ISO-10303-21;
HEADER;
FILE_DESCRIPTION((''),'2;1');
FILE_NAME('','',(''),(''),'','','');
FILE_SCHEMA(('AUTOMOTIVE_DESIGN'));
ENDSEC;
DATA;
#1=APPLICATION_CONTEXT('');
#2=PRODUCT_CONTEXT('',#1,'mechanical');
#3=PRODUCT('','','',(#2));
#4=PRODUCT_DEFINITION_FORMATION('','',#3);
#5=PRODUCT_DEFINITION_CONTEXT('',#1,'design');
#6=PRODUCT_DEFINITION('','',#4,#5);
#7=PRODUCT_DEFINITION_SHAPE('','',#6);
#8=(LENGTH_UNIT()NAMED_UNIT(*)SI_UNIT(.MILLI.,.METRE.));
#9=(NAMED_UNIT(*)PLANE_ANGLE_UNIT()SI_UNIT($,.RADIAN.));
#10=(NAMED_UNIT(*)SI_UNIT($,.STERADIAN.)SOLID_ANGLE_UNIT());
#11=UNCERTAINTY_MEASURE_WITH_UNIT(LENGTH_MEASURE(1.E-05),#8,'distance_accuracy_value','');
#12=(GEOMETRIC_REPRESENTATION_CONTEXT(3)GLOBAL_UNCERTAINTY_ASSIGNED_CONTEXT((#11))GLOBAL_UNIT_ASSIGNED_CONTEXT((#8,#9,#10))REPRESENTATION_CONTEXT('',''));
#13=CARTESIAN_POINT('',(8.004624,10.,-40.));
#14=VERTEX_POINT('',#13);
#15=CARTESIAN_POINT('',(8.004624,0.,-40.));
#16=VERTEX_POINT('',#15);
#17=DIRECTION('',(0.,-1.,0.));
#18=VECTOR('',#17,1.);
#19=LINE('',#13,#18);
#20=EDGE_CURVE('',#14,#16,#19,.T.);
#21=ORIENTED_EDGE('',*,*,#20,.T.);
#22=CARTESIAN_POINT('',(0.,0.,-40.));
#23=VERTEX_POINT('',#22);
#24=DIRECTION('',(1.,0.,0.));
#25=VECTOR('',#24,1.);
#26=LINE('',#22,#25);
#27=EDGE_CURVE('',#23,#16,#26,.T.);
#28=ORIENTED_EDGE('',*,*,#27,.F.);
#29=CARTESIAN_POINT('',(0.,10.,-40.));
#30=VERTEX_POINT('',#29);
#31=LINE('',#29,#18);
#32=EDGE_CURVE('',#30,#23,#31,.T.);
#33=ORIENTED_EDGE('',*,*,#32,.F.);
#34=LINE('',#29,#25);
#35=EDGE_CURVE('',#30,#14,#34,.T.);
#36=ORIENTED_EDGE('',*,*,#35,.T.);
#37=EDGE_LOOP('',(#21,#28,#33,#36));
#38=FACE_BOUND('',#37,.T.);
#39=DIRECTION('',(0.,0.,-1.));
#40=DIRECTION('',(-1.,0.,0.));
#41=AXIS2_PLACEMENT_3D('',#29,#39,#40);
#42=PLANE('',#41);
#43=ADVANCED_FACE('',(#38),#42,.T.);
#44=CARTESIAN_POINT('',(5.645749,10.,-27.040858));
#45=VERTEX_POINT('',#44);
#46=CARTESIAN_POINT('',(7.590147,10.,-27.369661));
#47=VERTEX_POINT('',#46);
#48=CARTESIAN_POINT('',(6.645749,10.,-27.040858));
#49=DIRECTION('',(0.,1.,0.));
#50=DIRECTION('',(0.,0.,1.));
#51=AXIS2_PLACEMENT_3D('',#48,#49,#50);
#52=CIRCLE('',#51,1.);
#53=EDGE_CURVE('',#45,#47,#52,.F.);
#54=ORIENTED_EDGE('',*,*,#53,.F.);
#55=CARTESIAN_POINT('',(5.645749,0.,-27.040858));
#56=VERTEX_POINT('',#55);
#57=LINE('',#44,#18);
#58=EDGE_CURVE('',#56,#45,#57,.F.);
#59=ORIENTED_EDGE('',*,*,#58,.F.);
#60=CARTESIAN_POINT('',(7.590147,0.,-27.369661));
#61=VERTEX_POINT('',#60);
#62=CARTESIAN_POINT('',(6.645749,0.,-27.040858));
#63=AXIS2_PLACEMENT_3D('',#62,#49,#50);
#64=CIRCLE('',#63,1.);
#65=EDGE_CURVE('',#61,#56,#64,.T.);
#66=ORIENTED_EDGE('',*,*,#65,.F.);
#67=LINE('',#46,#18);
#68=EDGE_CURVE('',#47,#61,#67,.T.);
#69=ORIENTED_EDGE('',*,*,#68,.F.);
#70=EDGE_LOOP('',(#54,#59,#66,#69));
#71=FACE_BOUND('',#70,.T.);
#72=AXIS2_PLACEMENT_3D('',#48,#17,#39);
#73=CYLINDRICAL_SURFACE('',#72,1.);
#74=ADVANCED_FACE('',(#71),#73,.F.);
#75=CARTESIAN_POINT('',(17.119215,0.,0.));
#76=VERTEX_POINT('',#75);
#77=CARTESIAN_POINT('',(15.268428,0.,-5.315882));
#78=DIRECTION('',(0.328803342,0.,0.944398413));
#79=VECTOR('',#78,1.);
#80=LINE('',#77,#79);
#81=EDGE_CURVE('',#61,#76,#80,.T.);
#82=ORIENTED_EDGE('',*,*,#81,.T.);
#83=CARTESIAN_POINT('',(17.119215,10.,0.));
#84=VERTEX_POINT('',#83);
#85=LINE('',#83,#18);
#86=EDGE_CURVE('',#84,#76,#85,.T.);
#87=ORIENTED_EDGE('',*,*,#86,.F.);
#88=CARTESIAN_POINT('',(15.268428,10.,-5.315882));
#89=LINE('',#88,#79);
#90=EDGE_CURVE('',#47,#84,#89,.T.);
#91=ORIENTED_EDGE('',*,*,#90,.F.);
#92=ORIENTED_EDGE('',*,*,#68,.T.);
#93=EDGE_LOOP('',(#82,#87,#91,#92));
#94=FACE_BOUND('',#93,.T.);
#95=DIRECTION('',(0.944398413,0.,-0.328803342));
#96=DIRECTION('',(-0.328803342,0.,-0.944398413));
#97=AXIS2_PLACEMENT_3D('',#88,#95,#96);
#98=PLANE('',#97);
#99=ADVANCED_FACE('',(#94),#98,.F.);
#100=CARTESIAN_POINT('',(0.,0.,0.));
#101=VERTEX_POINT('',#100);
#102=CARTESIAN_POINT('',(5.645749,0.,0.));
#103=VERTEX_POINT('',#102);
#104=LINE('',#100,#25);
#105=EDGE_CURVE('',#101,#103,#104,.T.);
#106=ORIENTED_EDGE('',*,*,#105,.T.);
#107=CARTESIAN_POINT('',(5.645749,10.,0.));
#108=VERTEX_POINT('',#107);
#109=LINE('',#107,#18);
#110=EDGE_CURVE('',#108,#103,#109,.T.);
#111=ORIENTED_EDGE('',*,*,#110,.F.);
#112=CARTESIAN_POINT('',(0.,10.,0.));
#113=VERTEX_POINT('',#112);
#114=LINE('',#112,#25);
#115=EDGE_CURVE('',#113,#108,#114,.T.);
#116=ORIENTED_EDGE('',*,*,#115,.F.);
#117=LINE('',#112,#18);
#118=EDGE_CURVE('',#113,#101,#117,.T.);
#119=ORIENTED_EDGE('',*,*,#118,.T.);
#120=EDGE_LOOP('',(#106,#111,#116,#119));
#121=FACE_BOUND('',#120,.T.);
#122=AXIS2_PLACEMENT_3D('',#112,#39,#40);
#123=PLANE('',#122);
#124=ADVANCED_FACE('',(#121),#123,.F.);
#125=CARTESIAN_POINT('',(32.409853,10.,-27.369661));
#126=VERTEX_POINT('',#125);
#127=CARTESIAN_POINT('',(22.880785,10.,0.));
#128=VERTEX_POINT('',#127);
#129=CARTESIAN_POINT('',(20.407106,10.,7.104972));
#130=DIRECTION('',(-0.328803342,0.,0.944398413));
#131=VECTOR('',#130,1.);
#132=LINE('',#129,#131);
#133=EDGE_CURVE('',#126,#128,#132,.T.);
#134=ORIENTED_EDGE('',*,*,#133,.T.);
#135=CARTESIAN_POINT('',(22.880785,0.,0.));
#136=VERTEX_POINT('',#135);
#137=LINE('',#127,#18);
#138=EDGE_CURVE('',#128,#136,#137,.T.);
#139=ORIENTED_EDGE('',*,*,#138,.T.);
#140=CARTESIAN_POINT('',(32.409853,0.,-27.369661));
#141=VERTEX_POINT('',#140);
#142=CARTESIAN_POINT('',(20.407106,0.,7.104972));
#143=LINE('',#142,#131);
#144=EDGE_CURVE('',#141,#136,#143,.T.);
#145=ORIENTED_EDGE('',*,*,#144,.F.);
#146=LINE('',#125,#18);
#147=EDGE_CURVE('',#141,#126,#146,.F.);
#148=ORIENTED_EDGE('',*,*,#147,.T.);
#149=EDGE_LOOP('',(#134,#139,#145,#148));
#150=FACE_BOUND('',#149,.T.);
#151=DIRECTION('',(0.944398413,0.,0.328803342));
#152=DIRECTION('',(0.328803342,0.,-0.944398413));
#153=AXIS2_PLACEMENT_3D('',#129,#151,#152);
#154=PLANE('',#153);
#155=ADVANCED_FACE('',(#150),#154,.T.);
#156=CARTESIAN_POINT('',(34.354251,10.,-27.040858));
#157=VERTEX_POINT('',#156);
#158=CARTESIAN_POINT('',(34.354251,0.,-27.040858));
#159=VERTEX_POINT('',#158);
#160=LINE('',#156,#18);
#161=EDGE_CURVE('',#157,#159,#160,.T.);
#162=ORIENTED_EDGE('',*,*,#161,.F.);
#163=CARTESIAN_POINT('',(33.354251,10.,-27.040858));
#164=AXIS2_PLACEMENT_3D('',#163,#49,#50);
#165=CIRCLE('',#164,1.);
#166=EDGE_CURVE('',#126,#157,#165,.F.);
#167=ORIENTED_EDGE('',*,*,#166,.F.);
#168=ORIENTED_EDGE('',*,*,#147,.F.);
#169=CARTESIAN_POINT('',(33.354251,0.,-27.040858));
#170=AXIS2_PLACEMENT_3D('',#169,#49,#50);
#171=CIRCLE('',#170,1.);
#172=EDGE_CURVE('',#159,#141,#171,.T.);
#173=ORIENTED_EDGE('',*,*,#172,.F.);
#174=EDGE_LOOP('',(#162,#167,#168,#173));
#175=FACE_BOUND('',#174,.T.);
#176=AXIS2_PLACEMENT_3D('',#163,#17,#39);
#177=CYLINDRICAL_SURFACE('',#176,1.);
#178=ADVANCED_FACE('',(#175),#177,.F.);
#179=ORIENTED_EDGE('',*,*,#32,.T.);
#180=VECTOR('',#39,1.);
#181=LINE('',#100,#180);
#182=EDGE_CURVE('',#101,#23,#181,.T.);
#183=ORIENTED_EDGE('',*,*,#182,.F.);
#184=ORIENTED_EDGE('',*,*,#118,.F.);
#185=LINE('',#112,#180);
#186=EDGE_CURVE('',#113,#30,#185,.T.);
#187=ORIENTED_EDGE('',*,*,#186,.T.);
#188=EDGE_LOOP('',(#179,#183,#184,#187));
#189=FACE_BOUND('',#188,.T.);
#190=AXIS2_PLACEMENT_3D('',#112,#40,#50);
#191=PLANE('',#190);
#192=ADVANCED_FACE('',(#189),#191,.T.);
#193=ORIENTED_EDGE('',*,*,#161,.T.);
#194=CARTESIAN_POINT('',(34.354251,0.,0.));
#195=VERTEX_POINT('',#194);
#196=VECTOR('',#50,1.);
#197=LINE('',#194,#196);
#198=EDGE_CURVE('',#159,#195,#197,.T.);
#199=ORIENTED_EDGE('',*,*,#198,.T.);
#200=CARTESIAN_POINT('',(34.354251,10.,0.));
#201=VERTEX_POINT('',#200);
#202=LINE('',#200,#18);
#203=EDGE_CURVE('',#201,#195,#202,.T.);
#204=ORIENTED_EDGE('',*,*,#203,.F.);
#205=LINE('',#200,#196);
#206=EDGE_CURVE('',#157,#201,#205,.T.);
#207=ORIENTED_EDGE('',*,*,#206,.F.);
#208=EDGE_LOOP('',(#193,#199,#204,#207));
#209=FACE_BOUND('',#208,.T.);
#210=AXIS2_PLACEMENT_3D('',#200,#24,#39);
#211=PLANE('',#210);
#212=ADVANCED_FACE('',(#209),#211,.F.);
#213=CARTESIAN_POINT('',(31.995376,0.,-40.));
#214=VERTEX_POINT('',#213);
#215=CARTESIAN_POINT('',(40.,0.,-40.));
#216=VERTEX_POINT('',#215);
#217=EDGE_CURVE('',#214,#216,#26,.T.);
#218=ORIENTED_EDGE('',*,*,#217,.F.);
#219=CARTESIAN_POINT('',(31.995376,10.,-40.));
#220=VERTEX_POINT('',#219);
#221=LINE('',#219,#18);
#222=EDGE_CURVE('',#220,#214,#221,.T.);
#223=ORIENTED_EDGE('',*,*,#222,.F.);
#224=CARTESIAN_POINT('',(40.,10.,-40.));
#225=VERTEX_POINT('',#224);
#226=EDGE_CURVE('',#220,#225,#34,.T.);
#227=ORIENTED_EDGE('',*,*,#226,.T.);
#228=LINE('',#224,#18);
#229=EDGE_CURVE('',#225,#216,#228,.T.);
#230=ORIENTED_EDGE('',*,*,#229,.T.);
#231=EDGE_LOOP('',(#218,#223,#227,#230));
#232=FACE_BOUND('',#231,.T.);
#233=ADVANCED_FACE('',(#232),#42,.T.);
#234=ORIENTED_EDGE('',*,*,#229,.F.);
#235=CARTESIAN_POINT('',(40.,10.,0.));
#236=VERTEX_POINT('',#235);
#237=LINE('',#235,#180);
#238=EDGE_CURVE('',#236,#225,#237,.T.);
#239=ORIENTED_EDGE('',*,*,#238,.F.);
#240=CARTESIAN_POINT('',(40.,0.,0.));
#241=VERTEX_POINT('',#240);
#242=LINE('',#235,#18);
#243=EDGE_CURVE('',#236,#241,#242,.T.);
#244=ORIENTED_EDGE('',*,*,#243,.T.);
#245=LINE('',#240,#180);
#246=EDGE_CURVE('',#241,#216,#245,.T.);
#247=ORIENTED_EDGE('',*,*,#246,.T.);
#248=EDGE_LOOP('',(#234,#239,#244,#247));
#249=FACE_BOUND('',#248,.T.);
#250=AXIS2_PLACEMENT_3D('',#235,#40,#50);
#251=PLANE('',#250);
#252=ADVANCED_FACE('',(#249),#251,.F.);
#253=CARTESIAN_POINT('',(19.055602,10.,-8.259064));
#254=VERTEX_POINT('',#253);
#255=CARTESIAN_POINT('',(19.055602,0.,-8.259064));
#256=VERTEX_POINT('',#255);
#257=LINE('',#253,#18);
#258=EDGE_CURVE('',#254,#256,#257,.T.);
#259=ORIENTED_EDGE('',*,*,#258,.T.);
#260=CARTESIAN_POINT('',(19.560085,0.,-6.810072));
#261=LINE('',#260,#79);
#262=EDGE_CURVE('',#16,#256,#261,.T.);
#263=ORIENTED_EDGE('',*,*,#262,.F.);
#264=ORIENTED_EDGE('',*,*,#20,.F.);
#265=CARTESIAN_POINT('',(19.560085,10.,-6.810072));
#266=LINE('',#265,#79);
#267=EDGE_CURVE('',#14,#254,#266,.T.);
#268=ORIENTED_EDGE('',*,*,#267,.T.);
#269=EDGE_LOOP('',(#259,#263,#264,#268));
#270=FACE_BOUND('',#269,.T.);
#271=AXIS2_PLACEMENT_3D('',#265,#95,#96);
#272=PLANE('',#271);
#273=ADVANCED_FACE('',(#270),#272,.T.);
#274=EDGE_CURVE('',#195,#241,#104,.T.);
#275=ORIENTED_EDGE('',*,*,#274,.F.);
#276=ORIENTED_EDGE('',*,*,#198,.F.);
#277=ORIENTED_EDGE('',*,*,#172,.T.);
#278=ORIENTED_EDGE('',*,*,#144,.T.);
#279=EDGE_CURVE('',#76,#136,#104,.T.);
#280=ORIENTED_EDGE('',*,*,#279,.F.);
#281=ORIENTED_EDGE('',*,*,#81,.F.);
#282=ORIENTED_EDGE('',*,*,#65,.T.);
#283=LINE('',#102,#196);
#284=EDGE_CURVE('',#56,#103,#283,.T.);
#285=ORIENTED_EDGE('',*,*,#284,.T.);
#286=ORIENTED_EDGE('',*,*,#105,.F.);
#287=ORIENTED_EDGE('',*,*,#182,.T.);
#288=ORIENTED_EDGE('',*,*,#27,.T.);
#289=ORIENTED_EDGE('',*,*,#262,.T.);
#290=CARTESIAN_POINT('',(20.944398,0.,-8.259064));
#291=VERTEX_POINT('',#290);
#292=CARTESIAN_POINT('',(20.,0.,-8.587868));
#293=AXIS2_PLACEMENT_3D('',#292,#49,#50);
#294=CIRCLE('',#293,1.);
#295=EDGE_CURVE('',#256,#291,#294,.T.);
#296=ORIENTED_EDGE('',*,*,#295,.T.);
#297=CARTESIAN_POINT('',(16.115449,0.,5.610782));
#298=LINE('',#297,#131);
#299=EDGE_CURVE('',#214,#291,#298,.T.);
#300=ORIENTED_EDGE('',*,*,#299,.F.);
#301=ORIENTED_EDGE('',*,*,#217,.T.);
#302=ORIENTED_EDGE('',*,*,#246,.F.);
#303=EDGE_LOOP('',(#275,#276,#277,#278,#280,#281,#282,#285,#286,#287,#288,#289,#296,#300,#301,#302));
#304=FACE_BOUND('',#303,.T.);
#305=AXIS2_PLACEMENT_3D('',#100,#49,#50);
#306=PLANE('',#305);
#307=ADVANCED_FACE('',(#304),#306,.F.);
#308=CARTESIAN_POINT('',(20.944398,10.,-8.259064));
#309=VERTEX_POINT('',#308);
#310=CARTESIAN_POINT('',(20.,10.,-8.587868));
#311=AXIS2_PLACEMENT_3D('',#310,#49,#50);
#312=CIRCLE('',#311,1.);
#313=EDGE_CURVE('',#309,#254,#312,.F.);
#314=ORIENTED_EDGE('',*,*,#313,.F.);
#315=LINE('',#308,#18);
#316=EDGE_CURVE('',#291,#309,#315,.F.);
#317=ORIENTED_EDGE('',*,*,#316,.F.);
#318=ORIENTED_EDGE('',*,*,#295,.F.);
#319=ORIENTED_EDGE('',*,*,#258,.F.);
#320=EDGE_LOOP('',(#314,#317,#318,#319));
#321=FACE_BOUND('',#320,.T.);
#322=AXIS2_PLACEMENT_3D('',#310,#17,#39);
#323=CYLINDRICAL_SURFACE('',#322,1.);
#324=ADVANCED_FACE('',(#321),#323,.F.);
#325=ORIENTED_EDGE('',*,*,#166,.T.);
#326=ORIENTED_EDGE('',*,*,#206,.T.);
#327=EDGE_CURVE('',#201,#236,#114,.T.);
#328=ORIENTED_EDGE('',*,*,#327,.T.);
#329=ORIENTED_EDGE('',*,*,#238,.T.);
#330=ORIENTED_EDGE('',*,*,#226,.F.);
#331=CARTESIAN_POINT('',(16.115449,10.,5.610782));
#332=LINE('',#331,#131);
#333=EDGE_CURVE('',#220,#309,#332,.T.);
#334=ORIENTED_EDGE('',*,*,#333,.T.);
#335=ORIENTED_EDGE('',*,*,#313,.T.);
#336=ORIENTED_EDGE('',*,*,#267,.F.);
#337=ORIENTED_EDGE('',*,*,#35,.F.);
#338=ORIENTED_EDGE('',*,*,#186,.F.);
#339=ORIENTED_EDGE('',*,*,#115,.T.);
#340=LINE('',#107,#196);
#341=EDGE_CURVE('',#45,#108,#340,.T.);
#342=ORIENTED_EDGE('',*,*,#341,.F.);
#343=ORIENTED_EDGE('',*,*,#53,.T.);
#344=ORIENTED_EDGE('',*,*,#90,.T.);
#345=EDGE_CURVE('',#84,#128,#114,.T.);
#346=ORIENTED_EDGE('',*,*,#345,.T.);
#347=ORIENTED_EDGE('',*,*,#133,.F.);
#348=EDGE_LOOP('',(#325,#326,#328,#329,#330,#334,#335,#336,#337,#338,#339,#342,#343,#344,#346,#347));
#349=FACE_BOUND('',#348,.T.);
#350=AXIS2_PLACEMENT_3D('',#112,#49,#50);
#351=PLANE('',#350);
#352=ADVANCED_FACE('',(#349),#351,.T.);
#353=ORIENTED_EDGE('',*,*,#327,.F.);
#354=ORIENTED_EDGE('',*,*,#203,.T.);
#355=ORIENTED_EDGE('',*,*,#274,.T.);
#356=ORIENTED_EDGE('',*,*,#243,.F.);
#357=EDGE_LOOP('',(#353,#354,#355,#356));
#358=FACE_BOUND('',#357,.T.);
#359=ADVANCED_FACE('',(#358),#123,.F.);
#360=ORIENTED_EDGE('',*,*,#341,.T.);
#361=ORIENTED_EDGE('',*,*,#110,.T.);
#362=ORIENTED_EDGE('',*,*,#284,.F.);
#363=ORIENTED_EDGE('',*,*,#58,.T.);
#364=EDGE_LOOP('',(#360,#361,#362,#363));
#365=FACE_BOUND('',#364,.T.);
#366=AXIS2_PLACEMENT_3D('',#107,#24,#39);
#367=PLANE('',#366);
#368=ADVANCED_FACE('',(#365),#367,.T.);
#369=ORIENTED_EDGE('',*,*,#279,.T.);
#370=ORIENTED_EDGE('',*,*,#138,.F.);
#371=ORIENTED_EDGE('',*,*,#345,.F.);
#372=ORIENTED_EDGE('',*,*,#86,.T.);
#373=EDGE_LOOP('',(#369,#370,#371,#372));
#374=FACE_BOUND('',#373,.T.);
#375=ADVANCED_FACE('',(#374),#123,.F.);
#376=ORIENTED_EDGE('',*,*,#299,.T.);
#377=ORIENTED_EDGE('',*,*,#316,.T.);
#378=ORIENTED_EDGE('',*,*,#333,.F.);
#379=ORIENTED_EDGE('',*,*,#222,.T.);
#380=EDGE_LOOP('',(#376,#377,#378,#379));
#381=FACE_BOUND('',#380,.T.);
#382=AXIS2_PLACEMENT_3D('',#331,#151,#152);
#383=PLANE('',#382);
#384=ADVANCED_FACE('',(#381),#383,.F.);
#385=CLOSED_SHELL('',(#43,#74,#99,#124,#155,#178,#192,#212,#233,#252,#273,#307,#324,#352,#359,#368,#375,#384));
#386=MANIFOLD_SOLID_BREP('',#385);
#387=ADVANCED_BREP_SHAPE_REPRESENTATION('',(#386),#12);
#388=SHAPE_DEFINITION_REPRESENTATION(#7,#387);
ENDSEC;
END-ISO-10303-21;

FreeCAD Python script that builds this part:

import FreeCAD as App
import Part
import Sketcher
Q = App.Units.Quantity


def edges_at(feature, points):
    """Names of the edges that pass closest to the given points."""
    edges = feature.Shape.Edges
    near = lambda p: min(range(len(edges)), key=lambda i: edges[i].distToShape(Part.Vertex(*p))[0])
    return sorted({f"Edge{near(p) + 1}" for p in points})


def add_polygon(sketch, points):
    """Adds a closed chain of lines whose ends are joined by coincident constraints."""
    first, n = sketch.GeometryCount, len(points)
    for a, b in zip(points, points[1:] + points[:1]):
        sketch.addGeometry(Part.LineSegment(App.Vector(*a, 0), App.Vector(*b, 0)), False)
    for i in range(n):
        sketch.addConstraint(Sketcher.Constraint("Coincident", first + i, 2, first + (i + 1) % n, 1))

doc = App.newDocument("Part")
body = doc.addObject("PartDesign::Body", "Body")

# Sketch on XZ plane
sketch1 = body.newObject("Sketcher::SketchObject", "Sketch")
sketch1.AttachmentSupport = (doc.getObject("XZ_Plane"), [""])
sketch1.MapMode = "FlatFace"
add_polygon(sketch1, [(34.354251, -32.954418), (34.354251, 0), (40, 0), (40, -40), (31.995376, -40), (20, -5.546536), (8.004624, -40), (0, -40), (0, 0), (5.645749, 0), (5.645749, -32.954418), (17.119215, 0), (22.880785, 0)])  # lines 0-12
sketch1.addConstraint([
    Sketcher.Constraint("Vertical", 0),
    Sketcher.Constraint("Horizontal", 1),
    Sketcher.Constraint("Vertical", 2),
    Sketcher.Constraint("Horizontal", 3),
    Sketcher.Constraint("Horizontal", 6),
    Sketcher.Constraint("Vertical", 7),
    Sketcher.Constraint("Horizontal", 8),
    Sketcher.Constraint("Vertical", 9),
    Sketcher.Constraint("Horizontal", 11),
    Sketcher.Constraint("Coincident", 7, 2, -1, 1),
    Sketcher.Constraint("PointOnObject", 0, 2, -1),
    Sketcher.Constraint("PointOnObject", 10, 2, -1),
    Sketcher.Constraint("Parallel", 5, 10),
    Sketcher.Constraint("Parallel", 4, 12),
    Sketcher.Constraint("Horizontal", 3, 2, 5, 2),
    Sketcher.Constraint("Horizontal", 9, 2, 12, 2),
    Sketcher.Constraint("Equal", 3, 6),
    Sketcher.Constraint("Equal", 1, 8),
    Sketcher.Constraint("Equal", 4, 5),
    Sketcher.Constraint("DistanceY", 2, 2, 2, 1, Q("40 mm")),
    Sketcher.Constraint("DistanceX", -1, 1, 1, 2, Q("40 mm")),
    Sketcher.Constraint("DistanceX", 1, 1, 1, 2, Q("5.645749 mm")),
    Sketcher.Constraint("DistanceX", 11, 1, 11, 2, Q("5.761571 mm")),
    Sketcher.Constraint("DistanceY", 0, 1, 0, 2, Q("32.954418 mm")),
    Sketcher.Constraint("DistanceX", 3, 2, 3, 1, Q("8.004624 mm")),
])
pad1 = body.newObject("PartDesign::Pad", "Pad")
pad1.Profile = sketch1
pad1.Length = 10
pad1.Reversed = True
doc.recompute()

fillet = body.newObject("PartDesign::Fillet", "Fillet")
fillet.Base = (pad1, edges_at(pad1, [(34.354, 5, -32.954), (5.646, 5, -32.954), (20, 5, -5.547)]))
fillet.Radius = 1

doc.recompute()
